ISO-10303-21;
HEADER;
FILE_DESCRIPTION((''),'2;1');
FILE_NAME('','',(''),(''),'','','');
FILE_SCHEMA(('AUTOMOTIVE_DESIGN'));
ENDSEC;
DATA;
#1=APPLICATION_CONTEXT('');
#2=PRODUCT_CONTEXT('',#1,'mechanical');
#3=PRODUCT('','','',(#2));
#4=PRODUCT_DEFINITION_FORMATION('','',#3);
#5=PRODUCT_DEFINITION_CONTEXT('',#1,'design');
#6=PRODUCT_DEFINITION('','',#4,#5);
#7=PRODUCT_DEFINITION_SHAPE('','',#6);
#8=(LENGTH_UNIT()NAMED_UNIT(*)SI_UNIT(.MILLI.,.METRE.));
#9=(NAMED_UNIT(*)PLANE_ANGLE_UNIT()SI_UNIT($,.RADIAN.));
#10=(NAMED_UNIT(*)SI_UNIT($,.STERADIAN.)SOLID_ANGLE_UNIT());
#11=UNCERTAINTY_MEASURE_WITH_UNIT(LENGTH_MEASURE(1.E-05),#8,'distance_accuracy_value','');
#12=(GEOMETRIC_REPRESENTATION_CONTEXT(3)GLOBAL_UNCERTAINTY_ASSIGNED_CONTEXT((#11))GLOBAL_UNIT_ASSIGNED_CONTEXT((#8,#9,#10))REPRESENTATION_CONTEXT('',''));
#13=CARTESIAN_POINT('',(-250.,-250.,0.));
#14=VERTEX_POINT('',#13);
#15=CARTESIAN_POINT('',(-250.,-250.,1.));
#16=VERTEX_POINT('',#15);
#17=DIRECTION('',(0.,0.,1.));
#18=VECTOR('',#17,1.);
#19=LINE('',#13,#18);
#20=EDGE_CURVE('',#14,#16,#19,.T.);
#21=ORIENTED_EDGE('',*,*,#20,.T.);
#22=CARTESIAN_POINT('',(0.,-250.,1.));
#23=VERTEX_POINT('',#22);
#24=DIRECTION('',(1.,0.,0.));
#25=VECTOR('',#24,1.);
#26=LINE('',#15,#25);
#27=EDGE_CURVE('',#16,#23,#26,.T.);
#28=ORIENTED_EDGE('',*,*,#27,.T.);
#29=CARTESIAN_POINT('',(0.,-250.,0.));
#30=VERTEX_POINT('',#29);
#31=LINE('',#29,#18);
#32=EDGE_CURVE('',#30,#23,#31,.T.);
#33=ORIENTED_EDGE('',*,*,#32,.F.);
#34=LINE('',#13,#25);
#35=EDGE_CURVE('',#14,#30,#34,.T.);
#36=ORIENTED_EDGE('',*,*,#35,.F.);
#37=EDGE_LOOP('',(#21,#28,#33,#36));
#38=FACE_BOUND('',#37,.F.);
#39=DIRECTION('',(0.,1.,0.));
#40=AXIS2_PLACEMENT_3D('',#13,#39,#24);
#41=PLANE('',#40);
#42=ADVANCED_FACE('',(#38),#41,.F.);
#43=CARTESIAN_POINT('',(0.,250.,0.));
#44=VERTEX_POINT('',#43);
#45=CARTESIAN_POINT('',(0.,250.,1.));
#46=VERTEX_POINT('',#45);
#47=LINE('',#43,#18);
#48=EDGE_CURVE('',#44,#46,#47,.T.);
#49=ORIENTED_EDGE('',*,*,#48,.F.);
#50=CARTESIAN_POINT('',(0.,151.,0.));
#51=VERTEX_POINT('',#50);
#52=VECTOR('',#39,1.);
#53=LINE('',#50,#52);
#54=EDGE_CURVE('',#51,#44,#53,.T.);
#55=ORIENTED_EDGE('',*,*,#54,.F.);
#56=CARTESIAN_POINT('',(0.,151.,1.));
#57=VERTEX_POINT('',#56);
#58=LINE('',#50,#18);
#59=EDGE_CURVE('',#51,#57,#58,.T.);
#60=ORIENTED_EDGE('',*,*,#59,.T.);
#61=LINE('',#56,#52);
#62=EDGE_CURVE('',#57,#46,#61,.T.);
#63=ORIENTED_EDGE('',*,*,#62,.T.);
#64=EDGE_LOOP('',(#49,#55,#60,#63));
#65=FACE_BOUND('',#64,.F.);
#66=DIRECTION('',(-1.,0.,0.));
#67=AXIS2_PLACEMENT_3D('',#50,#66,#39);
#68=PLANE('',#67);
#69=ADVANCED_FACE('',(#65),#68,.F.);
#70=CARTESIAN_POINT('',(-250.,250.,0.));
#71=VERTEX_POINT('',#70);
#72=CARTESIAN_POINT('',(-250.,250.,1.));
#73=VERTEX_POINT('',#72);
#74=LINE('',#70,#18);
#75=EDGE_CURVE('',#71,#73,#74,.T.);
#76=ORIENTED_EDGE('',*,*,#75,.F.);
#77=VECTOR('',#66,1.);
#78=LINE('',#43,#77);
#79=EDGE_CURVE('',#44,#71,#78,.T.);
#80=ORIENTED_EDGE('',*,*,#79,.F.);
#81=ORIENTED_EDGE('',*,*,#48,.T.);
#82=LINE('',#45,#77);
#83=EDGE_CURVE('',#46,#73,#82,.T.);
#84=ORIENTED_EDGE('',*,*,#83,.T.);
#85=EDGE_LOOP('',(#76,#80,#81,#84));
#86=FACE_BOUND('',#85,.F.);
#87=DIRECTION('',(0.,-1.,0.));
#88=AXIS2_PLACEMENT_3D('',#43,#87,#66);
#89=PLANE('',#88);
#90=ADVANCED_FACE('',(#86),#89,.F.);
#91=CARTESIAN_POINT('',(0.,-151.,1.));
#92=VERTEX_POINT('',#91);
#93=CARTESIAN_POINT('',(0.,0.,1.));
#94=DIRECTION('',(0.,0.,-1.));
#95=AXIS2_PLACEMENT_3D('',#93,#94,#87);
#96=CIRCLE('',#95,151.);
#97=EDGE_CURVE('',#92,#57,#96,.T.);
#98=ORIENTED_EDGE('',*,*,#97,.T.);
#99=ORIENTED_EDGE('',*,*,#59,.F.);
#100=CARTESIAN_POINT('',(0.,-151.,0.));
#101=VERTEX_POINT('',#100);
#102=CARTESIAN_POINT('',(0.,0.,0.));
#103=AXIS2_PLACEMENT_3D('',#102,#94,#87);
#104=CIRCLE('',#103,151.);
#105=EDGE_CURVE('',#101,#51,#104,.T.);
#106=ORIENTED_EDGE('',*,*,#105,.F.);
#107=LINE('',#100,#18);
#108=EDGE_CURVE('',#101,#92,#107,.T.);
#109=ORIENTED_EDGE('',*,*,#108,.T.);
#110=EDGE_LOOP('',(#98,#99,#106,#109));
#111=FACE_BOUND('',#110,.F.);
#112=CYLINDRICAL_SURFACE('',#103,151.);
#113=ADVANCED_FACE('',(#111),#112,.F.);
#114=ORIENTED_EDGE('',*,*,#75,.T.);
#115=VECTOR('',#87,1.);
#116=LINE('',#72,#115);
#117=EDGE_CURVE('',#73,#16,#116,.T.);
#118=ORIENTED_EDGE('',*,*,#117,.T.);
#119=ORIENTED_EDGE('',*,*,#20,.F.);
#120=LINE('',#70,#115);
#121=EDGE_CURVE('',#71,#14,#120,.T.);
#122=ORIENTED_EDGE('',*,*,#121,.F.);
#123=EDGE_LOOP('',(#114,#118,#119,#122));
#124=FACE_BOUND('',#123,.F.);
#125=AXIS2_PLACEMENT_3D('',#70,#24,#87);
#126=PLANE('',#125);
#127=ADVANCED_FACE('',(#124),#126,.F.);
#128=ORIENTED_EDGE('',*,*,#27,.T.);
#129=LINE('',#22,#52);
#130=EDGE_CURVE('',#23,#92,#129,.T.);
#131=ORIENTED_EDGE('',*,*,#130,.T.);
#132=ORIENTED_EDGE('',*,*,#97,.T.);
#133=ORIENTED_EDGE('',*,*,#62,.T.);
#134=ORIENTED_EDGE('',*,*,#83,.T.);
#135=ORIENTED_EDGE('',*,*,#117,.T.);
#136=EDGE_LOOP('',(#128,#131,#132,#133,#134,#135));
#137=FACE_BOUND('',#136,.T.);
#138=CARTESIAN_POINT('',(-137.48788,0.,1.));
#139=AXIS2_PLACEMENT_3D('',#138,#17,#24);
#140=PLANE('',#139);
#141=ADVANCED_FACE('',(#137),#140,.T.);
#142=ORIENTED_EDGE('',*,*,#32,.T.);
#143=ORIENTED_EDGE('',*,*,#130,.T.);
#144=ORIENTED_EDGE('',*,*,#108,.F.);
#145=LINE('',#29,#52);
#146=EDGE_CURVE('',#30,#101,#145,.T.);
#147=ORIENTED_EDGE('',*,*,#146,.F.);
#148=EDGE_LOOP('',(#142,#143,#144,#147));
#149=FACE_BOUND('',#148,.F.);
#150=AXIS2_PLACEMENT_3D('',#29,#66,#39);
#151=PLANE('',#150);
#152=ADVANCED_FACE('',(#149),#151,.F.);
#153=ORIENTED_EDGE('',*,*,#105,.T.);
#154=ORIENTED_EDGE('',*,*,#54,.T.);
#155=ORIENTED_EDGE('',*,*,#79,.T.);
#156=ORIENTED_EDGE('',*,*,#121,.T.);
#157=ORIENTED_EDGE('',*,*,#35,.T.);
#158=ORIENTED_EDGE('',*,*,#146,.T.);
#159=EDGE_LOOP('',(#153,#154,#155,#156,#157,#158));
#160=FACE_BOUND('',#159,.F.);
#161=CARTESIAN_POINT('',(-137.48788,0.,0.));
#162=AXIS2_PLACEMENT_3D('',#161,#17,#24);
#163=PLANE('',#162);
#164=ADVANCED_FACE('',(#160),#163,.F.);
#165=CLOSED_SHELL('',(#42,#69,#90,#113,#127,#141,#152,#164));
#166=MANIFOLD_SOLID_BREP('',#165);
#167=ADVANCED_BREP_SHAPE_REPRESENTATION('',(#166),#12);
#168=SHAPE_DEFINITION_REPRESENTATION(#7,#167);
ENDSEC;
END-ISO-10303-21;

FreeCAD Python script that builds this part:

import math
import FreeCAD as App
import Part
import Sketcher

V = App.Vector
Q = App.Units.Quantity

doc = App.newDocument("Part")
body = doc.addObject("PartDesign::Body", "Body")

# Sketch on XY plane
sketch1 = body.newObject("Sketcher::SketchObject", "Sketch")
sketch1.AttachmentSupport = (doc.getObject("XY_Plane"), [""])
sketch1.MapMode = "FlatFace"
sketch1.addGeometry([
    Part.ArcOfCircle(Part.Circle(V(0, 0, 0), V(0, 0, 1), 151), math.radians(90), math.radians(270)),  # 0
    Part.LineSegment(V(0, 151, 0), V(0, 250, 0)),  # 1
    Part.LineSegment(V(0, 250, 0), V(-250, 250, 0)),  # 2
    Part.LineSegment(V(-250, 250, 0), V(-250, -250, 0)),  # 3
    Part.LineSegment(V(-250, -250, 0), V(0, -250, 0)),  # 4
    Part.LineSegment(V(0, -250, 0), V(0, -151, 0)),  # 5
], False)
sketch1.addConstraint([
    Sketcher.Constraint("Coincident", 0, 1, 1, 1),
    Sketcher.Constraint("Coincident", 1, 2, 2, 1),
    Sketcher.Constraint("Coincident", 2, 2, 3, 1),
    Sketcher.Constraint("Coincident", 3, 2, 4, 1),
    Sketcher.Constraint("Coincident", 4, 2, 5, 1),
    Sketcher.Constraint("Coincident", 5, 2, 0, 2),
    Sketcher.Constraint("Vertical", 1),
    Sketcher.Constraint("Horizontal", 2),
    Sketcher.Constraint("Vertical", 3),
    Sketcher.Constraint("Horizontal", 4),
    Sketcher.Constraint("Vertical", 5),
    Sketcher.Constraint("Coincident", 0, 3, -1, 1),
    Sketcher.Constraint("Symmetric", 1, 2, 4, 2, -1, 1),
    Sketcher.Constraint("PointOnObject", 0, 1, -2),
    Sketcher.Constraint("Radius", 0, Q("151 mm")),
    Sketcher.Constraint("DistanceX", 2, 2, 2, 1, Q("250 mm")),
    Sketcher.Constraint("DistanceY", 1, 1, 1, 2, Q("99 mm")),
])
pad1 = body.newObject("PartDesign::Pad", "Pad")
pad1.Profile = sketch1
pad1.Length = 1

doc.recompute()
